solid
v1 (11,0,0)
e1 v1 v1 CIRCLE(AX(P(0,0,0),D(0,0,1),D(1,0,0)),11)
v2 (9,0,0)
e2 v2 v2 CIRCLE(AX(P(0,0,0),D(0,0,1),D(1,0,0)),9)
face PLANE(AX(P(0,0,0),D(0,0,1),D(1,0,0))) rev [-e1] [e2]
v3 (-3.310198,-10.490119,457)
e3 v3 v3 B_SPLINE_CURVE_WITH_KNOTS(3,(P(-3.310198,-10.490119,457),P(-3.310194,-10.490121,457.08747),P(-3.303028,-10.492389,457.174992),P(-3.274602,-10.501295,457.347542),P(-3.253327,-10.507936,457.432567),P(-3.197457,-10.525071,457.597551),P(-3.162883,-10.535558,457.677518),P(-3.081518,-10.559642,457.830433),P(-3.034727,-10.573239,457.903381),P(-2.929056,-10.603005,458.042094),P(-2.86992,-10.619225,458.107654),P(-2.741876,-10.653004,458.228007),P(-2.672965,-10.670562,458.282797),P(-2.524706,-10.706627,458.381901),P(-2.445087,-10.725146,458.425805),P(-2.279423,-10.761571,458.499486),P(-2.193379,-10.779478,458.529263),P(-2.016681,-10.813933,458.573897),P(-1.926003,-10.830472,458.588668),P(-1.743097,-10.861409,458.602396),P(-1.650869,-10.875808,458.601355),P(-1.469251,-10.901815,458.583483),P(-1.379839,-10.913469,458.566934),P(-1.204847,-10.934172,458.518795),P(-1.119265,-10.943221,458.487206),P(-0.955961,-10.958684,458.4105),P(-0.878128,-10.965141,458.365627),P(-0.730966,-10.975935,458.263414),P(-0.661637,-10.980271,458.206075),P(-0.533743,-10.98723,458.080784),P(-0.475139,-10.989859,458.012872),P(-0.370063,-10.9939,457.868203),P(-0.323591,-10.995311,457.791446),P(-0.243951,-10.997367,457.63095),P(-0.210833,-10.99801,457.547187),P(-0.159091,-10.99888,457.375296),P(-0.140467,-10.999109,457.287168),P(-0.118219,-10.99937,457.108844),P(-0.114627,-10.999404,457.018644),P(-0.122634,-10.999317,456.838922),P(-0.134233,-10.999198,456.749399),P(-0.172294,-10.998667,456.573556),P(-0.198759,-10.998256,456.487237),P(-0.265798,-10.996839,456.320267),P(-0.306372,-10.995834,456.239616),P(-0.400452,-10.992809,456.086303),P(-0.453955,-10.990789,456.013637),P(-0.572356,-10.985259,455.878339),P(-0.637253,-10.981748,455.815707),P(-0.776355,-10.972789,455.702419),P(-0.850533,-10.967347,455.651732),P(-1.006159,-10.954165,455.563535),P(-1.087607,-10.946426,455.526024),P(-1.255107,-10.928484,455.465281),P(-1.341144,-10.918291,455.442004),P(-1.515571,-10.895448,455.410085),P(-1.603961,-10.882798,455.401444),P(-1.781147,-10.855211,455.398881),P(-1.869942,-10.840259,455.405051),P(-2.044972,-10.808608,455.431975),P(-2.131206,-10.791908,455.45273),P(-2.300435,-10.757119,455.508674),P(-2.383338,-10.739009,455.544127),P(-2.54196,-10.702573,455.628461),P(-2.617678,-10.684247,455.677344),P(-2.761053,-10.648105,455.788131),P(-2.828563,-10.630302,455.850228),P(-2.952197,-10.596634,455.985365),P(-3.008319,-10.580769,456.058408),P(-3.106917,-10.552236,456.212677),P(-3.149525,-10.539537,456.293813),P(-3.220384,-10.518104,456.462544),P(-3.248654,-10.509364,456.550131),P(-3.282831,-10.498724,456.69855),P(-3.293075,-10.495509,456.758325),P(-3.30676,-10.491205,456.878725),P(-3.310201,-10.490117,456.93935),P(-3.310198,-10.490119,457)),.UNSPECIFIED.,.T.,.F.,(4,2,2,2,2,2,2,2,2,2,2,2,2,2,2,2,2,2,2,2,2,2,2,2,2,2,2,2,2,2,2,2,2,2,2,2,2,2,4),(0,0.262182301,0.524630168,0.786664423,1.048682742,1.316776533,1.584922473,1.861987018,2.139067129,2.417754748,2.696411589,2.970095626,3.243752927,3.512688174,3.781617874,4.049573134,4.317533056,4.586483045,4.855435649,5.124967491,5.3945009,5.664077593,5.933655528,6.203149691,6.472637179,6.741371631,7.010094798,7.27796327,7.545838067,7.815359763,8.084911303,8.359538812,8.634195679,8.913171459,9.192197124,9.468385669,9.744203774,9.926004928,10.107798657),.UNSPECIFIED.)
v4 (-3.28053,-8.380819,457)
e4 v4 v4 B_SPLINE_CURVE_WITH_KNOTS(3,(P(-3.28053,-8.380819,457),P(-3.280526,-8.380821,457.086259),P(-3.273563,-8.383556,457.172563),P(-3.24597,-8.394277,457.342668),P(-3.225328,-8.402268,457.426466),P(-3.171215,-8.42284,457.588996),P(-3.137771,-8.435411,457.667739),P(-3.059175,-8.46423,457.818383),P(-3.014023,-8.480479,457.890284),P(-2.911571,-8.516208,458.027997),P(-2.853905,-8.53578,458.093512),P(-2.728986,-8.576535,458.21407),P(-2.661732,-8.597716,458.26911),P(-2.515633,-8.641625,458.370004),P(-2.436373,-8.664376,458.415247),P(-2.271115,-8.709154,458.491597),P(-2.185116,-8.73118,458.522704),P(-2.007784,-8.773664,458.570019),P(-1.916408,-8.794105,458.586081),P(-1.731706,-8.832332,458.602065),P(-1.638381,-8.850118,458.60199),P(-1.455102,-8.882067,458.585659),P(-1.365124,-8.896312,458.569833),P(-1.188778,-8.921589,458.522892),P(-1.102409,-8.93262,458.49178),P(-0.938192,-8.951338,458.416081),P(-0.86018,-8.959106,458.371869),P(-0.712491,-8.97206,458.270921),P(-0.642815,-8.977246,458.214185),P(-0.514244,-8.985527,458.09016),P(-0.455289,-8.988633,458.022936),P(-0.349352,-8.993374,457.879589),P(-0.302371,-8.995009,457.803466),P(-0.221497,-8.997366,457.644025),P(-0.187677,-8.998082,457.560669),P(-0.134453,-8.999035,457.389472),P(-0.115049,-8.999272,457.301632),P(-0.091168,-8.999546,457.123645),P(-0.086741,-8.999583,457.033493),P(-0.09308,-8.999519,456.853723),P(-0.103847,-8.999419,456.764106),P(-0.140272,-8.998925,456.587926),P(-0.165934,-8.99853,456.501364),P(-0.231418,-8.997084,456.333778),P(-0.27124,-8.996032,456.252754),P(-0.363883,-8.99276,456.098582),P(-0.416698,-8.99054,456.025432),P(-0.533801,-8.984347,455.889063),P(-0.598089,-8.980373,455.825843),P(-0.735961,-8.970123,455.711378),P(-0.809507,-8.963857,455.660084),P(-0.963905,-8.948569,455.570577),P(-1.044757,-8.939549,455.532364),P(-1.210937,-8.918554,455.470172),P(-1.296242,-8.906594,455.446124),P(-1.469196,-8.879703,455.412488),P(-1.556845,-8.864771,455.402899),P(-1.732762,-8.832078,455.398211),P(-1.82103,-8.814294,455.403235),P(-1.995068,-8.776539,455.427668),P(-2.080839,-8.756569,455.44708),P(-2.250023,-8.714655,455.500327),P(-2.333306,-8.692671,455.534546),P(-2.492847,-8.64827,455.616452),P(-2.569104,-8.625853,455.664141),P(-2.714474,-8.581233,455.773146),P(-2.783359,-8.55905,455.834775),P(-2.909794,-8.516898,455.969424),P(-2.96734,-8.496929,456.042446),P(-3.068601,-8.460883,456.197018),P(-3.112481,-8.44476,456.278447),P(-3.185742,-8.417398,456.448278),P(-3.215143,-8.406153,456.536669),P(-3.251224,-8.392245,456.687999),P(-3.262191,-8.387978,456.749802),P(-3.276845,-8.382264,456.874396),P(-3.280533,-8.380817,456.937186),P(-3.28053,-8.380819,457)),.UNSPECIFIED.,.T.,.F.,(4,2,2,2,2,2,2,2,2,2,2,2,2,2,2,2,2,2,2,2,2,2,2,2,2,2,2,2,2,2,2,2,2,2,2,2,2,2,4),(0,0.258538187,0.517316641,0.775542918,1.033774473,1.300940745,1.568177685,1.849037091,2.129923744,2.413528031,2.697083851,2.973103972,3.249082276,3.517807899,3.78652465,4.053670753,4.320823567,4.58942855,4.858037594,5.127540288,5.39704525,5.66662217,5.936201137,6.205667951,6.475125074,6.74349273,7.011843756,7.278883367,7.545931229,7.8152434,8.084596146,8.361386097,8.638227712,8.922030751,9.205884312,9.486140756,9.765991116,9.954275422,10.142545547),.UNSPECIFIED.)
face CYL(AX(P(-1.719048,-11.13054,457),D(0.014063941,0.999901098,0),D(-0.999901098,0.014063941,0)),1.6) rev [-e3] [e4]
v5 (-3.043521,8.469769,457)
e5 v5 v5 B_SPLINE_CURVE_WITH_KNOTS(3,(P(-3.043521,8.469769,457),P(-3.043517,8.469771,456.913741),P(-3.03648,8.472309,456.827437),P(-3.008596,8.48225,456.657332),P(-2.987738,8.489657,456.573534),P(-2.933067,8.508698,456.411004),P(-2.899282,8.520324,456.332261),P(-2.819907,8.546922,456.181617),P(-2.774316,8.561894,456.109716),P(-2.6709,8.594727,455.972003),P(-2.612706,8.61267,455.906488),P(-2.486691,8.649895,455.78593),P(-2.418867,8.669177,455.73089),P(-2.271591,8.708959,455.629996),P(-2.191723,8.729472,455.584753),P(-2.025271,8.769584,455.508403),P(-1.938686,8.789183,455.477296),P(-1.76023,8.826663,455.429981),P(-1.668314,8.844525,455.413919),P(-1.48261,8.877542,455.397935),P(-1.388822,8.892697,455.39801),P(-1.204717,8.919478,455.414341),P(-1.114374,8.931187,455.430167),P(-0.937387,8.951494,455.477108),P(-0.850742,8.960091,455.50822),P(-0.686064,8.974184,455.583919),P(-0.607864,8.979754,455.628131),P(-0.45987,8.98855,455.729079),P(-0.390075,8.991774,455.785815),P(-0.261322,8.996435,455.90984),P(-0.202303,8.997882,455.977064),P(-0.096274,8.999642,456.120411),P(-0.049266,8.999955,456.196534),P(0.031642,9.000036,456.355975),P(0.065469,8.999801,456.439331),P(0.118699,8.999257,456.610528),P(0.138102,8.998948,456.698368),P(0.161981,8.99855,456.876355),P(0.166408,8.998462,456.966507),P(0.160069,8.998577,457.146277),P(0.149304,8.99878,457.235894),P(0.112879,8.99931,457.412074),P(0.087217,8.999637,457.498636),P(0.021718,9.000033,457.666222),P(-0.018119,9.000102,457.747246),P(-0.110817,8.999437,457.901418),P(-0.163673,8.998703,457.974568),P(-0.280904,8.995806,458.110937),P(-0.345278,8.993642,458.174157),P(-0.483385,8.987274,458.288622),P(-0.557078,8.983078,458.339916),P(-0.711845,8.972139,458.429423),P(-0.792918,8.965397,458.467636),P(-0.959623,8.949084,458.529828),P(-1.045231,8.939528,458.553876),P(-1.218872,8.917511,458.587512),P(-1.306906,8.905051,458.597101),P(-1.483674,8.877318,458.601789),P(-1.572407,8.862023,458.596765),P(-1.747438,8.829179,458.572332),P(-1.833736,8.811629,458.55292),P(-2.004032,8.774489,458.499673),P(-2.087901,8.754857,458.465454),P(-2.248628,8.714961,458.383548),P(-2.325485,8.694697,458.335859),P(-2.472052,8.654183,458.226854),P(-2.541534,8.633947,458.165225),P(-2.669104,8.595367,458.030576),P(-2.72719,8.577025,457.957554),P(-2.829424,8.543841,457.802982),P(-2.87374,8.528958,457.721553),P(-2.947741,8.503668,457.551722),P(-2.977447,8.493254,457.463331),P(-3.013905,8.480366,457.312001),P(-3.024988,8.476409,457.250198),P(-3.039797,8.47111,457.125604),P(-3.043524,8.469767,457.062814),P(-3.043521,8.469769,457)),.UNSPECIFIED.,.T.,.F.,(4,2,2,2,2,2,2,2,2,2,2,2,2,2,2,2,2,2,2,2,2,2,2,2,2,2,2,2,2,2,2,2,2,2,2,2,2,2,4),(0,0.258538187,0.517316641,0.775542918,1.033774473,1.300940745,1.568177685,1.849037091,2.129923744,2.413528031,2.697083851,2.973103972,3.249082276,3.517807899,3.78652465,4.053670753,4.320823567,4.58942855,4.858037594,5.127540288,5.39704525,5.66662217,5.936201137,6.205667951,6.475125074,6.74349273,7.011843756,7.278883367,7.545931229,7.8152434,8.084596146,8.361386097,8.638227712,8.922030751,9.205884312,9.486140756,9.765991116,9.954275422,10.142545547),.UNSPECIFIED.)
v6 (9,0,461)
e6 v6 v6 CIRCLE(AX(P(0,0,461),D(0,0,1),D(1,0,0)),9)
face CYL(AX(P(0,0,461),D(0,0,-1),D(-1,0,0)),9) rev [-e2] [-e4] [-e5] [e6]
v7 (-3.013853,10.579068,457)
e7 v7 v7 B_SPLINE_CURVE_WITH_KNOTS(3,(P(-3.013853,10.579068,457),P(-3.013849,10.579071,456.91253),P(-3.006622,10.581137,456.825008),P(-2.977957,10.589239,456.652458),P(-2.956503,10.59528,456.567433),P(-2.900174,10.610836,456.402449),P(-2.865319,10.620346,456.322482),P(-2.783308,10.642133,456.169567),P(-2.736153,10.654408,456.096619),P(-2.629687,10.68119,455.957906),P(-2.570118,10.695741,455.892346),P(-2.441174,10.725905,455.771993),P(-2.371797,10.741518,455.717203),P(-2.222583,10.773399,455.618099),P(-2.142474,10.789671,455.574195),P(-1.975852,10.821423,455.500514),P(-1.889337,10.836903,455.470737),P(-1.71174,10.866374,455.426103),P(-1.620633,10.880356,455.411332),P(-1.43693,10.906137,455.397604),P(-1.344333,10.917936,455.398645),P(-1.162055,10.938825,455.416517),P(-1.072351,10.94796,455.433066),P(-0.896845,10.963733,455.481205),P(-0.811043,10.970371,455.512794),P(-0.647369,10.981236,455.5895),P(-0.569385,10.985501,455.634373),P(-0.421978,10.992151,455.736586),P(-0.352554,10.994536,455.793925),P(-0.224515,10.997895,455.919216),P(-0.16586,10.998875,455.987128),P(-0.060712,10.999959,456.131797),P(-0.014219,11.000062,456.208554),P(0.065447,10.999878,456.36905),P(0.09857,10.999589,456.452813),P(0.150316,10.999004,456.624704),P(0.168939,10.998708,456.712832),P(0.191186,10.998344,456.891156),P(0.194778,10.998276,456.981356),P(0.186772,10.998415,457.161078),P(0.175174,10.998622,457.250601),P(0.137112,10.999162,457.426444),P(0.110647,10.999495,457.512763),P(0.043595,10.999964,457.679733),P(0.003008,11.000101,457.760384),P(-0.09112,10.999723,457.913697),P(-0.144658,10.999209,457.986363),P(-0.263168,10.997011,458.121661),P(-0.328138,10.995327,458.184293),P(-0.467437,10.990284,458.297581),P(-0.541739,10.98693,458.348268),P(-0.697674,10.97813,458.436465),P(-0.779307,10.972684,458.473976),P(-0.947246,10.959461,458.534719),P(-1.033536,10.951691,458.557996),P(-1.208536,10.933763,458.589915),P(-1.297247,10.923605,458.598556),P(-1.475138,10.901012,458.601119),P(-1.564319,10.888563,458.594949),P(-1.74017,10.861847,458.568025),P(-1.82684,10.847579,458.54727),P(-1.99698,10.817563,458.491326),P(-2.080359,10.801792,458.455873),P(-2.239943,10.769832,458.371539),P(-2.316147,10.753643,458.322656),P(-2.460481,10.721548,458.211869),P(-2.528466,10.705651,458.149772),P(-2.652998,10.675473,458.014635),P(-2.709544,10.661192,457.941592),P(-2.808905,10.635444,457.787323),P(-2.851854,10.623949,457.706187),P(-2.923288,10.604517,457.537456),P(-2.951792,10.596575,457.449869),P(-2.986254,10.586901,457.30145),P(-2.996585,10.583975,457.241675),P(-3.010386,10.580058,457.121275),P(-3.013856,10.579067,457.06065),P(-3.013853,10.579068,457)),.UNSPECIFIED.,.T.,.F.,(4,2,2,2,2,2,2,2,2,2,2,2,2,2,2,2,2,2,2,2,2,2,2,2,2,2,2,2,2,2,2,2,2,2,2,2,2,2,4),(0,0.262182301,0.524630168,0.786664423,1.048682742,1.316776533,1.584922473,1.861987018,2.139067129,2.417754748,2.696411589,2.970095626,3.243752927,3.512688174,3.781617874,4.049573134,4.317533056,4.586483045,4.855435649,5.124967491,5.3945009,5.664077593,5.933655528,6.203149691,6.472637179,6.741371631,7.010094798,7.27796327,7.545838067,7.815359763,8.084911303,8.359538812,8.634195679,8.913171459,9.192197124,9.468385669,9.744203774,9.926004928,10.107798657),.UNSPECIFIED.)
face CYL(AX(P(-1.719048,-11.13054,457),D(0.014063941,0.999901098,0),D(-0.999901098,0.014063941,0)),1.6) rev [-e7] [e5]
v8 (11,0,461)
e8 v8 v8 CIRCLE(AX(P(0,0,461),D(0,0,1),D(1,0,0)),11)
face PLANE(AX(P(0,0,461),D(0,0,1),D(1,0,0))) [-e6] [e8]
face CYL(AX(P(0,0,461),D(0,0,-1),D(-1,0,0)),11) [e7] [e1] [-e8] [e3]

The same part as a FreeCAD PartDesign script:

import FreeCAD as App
import Part
import Sketcher
from FreeCAD import Vector

doc = App.newDocument("Part")
body = doc.addObject("PartDesign::Body", "Body")

# Sketch on XY plane
sketch1 = doc.addObject("Sketcher::SketchObject", "Sketch")
body.addObject(sketch1)
sketch1.AttachmentSupport = (doc.XY_Plane, [""])
sketch1.MapMode = "FlatFace"
sketch1.addGeometry(Part.Circle(Vector(0, 0, 0), Vector(0, 0, 1), 11), False)
sketch1.addGeometry(Part.Circle(Vector(0, 0, 0), Vector(0, 0, 1), 9), False)
sketch1.addConstraint(Sketcher.Constraint("Coincident", 0, 3, -1, 1))
sketch1.addConstraint(Sketcher.Constraint("Coincident", 1, 3, -1, 1))
sketch1.addConstraint(Sketcher.Constraint("Diameter", 0, 22.0))
sketch1.addConstraint(Sketcher.Constraint("Diameter", 1, 18.0))
pad1 = doc.addObject("PartDesign::Pad", "Pad")
body.addObject(pad1)
pad1.Profile = sketch1
pad1.Length = 461

# Sketch on an angled plane
sketch2 = doc.addObject("Sketcher::SketchObject", "Sketch001")
body.addObject(sketch2)
sketch2.Placement = App.Placement(Vector(0.154703, 10.998912, 0), App.Rotation(Vector(0, 0, 1), Vector(0.999901098, -0.014063941, 0), Vector(0.014063941, 0.999901098, 0), "ZXY"))
sketch2.addGeometry(Part.Circle(Vector(457, -1.6, 0), Vector(0, 0, 1), 1.6), False)
sketch2.addConstraint(Sketcher.Constraint("Diameter", 0, 3.2))
sketch2.addConstraint(Sketcher.Constraint("DistanceX", -1, 1, 0, 3, 457.0))
sketch2.addConstraint(Sketcher.Constraint("DistanceY", 0, 3, -1, 1, 1.562338))
pocket1 = doc.addObject("PartDesign::Pocket", "Pocket")
body.addObject(pocket1)
pocket1.Profile = sketch2
pocket1.Type = "ThroughAll"

doc.recompute()
